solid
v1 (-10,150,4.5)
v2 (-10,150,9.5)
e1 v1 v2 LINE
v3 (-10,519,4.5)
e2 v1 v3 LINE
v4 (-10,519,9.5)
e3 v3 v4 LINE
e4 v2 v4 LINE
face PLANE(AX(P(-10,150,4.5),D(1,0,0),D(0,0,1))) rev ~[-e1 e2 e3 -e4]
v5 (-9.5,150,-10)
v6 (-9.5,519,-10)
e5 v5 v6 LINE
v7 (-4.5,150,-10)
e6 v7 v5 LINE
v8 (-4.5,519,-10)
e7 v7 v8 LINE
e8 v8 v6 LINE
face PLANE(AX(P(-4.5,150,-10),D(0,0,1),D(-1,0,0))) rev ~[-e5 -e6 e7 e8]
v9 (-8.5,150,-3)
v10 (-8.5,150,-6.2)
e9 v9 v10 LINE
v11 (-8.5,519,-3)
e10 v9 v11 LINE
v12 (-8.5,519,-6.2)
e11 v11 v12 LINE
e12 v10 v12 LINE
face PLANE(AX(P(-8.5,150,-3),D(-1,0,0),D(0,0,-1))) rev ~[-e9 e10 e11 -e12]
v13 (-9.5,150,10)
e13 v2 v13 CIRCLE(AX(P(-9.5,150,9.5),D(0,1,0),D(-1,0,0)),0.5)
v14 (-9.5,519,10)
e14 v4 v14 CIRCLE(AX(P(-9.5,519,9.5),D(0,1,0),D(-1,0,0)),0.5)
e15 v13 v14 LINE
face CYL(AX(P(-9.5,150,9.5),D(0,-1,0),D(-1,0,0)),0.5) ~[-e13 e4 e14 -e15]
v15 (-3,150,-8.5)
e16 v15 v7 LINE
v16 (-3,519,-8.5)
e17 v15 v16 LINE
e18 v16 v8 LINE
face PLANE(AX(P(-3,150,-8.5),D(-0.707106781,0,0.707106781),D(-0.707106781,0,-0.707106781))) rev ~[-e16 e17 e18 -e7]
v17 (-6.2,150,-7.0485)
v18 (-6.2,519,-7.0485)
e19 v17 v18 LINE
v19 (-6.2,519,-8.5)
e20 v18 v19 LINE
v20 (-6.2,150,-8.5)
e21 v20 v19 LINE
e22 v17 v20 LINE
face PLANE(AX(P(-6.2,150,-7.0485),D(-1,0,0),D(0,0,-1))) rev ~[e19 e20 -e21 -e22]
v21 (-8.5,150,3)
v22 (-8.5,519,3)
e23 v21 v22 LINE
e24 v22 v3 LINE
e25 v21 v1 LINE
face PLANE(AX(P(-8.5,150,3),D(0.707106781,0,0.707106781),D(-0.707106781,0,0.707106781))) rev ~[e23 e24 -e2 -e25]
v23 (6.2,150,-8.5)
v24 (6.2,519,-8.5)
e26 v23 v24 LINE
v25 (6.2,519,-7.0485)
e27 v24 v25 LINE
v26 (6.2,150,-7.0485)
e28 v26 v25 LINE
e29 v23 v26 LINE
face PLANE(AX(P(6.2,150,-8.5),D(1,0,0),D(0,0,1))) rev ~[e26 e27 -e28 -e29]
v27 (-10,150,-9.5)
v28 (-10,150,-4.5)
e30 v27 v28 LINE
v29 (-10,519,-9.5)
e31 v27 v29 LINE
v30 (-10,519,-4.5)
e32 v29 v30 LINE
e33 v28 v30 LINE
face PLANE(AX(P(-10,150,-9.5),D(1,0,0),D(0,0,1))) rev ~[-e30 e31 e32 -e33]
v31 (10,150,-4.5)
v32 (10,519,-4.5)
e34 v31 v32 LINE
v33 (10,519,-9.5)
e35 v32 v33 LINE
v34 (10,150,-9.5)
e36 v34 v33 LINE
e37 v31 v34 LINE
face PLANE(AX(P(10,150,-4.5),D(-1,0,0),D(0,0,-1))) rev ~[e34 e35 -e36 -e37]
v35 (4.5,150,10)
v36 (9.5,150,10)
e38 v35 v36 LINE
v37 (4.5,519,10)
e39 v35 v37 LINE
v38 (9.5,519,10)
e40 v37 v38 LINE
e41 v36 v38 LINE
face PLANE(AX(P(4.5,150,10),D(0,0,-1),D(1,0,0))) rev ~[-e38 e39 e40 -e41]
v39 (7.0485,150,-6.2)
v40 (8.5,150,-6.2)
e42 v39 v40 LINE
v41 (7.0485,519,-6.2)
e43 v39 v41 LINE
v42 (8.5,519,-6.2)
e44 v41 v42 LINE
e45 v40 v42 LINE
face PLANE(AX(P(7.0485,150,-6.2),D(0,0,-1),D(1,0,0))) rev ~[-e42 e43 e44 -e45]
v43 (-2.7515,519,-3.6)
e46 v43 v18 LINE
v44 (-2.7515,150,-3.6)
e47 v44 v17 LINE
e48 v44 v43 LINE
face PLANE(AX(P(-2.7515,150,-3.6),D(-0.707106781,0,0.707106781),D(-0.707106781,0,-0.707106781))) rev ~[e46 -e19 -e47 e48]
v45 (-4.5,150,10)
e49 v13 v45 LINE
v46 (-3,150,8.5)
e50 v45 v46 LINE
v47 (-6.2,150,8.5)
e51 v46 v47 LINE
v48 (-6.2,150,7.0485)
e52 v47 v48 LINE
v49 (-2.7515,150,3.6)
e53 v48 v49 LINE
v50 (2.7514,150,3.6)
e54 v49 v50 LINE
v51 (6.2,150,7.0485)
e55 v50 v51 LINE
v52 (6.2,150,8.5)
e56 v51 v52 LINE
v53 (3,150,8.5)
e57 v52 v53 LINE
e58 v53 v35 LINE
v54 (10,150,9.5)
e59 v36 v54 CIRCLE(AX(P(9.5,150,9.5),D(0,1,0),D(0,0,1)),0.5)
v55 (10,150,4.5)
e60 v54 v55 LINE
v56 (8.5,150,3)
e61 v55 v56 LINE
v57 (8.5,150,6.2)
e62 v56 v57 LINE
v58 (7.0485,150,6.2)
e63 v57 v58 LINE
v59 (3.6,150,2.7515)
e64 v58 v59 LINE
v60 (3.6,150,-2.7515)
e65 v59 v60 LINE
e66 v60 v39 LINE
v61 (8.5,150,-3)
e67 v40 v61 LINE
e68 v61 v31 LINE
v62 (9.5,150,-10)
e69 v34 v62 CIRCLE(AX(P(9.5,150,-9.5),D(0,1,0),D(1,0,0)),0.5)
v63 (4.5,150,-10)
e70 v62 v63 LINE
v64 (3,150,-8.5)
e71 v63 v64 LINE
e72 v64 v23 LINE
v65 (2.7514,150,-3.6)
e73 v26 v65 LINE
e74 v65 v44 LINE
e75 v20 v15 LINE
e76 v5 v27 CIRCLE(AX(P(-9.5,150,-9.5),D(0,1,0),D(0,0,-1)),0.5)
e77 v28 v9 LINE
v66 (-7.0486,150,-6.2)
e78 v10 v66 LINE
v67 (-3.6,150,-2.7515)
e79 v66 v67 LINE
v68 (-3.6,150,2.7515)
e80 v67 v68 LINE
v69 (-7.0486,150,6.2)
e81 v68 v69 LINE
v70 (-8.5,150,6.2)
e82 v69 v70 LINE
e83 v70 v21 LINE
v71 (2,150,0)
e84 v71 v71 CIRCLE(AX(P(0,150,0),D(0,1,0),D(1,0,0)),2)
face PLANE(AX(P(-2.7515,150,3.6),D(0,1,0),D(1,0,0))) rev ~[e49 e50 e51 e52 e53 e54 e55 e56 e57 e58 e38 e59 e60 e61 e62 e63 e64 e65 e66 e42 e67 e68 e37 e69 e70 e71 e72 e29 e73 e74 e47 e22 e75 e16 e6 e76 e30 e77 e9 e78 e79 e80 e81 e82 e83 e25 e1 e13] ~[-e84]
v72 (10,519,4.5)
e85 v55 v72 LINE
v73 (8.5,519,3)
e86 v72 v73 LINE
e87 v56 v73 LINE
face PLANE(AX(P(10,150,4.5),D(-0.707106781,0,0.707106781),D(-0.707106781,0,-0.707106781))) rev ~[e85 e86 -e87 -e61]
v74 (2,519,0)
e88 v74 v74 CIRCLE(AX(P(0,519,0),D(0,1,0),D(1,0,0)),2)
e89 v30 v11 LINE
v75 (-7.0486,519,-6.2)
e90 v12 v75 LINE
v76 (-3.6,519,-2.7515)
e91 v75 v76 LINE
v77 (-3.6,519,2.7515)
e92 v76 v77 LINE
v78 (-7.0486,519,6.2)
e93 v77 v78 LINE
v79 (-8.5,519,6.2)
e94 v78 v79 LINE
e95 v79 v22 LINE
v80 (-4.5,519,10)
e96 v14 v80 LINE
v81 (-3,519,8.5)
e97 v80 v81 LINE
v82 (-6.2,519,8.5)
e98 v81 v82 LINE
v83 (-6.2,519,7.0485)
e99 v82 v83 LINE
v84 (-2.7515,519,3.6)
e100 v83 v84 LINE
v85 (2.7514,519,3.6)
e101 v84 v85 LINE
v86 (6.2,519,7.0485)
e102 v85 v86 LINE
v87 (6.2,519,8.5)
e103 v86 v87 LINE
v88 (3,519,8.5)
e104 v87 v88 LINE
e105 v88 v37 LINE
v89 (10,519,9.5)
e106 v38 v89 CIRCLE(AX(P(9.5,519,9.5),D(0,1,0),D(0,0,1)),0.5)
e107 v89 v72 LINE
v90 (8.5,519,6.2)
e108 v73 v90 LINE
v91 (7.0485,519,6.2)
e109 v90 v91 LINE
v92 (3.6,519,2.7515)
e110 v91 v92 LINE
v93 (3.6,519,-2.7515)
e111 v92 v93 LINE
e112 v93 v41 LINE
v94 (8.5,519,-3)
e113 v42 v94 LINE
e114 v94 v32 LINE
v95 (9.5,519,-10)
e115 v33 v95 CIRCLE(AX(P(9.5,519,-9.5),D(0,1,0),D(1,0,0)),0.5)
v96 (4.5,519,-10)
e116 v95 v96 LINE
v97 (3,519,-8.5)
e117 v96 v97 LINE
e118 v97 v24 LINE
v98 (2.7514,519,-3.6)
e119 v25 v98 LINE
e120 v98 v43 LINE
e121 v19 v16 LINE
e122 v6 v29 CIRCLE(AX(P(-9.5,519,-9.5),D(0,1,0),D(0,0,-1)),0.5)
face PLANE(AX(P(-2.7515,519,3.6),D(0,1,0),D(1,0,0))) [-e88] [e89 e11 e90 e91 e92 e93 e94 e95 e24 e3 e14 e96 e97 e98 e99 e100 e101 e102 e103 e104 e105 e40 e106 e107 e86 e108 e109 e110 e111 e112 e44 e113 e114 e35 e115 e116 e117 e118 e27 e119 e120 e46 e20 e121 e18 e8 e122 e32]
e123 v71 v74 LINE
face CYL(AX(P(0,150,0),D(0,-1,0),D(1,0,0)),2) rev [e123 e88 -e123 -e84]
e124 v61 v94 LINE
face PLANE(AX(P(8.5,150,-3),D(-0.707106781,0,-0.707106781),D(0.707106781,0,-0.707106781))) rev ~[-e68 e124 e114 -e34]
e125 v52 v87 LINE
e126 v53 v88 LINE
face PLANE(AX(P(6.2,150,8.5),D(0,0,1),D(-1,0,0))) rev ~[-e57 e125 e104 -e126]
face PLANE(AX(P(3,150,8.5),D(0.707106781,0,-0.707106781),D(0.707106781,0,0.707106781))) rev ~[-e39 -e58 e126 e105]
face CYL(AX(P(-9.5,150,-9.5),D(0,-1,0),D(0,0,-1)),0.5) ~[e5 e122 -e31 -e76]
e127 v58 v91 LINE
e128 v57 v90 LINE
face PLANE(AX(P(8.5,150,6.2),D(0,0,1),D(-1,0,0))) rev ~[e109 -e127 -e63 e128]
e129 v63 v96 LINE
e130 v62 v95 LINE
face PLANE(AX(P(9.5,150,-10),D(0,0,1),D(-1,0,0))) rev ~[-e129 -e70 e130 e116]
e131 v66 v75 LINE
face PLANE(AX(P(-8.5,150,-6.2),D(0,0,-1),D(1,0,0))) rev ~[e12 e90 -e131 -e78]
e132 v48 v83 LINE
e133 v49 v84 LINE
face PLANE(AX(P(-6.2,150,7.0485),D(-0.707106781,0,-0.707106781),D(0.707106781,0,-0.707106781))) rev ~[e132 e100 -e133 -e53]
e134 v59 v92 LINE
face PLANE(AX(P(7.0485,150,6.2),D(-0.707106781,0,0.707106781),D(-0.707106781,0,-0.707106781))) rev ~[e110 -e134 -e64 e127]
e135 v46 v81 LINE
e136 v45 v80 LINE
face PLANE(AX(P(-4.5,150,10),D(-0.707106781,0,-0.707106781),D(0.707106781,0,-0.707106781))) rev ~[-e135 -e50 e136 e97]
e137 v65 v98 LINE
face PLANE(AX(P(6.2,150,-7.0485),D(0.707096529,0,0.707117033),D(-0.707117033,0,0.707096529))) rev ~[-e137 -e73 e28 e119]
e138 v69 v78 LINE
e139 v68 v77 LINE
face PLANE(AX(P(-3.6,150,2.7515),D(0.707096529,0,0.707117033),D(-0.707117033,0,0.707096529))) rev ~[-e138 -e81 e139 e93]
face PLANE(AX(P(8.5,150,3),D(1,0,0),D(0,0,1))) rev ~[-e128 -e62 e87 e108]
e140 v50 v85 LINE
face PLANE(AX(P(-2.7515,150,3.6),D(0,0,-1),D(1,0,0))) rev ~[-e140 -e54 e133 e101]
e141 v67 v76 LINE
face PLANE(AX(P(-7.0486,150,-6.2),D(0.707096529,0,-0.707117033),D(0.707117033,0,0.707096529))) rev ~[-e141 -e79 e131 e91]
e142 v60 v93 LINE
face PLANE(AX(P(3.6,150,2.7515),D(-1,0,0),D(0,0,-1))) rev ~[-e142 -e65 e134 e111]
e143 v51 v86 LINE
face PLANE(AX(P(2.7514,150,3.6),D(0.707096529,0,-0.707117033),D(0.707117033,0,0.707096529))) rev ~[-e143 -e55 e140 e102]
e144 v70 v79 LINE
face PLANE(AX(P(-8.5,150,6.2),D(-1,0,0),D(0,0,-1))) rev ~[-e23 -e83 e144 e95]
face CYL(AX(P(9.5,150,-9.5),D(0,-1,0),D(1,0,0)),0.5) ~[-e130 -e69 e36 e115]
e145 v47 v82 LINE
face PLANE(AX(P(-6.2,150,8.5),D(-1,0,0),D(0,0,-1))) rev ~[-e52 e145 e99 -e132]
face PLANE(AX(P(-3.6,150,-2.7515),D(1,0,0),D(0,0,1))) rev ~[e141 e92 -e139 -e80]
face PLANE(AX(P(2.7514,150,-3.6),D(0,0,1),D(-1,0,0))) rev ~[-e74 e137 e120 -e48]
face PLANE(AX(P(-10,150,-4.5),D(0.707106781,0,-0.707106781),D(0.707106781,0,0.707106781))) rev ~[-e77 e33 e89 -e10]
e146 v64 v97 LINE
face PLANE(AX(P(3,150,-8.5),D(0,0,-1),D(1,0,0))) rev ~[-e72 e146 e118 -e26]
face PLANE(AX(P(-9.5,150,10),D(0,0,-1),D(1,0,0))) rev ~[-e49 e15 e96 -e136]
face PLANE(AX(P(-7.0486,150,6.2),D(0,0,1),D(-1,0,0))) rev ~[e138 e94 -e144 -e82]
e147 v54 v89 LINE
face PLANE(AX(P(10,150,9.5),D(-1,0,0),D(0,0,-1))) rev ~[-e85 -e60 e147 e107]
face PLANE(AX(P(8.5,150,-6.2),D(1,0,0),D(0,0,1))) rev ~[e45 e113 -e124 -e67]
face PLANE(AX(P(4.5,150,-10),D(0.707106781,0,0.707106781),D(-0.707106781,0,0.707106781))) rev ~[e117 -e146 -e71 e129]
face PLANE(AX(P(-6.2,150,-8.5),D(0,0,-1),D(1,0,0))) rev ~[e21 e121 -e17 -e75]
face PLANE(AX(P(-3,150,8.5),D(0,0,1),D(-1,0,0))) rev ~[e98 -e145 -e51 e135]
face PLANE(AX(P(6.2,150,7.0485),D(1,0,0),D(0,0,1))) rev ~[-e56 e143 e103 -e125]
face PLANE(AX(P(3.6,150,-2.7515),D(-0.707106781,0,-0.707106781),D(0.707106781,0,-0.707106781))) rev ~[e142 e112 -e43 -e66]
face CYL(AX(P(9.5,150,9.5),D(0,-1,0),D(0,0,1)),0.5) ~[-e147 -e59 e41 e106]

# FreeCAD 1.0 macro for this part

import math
import FreeCAD as App
import Part
import Sketcher

doc = App.newDocument("Part")
body = doc.addObject("PartDesign::Body", "Body")

sketch1 = body.newObject("Sketcher::SketchObject", "Sketch")
sketch1.AttachmentSupport = (doc.getObject("XZ_Plane"), [""])
sketch1.MapMode = "FlatFace"
sketch1.AttachmentOffset = App.Placement(App.Vector(0, 0, -150), App.Rotation())
sketch1.addGeometry([
    Part.LineSegment(App.Vector(-4.5, -10, 0), App.Vector(-9.5, -10, 0)),
    Part.ArcOfCircle(Part.Circle(App.Vector(-9.5, -9.5, 0), App.Vector(0, 0, 1), 0.5), math.radians(180), math.radians(270)),
    Part.LineSegment(App.Vector(-10, -9.5, 0), App.Vector(-10, -4.5, 0)),
    Part.LineSegment(App.Vector(-10, -4.5, 0), App.Vector(-8.5, -3, 0)),
    Part.LineSegment(App.Vector(-8.5, -3, 0), App.Vector(-8.5, -6.2, 0)),
    Part.LineSegment(App.Vector(-8.5, -6.2, 0), App.Vector(-7.0486, -6.2, 0)),
    Part.LineSegment(App.Vector(-7.0486, -6.2, 0), App.Vector(-3.6, -2.7515, 0)),
    Part.LineSegment(App.Vector(-3.6, -2.7515, 0), App.Vector(-3.6, 2.7515, 0)),
    Part.LineSegment(App.Vector(-3.6, 2.7515, 0), App.Vector(-7.0486, 6.2, 0)),
    Part.LineSegment(App.Vector(-7.0486, 6.2, 0), App.Vector(-8.5, 6.2, 0)),
    Part.LineSegment(App.Vector(-8.5, 6.2, 0), App.Vector(-8.5, 3, 0)),
    Part.LineSegment(App.Vector(-8.5, 3, 0), App.Vector(-10, 4.5, 0)),
    Part.LineSegment(App.Vector(-10, 4.5, 0), App.Vector(-10, 9.5, 0)),
    Part.ArcOfCircle(Part.Circle(App.Vector(-9.5, 9.5, 0), App.Vector(0, 0, 1), 0.5), math.radians(90), math.radians(180)),
    Part.LineSegment(App.Vector(-9.5, 10, 0), App.Vector(-4.5, 10, 0)),
    Part.LineSegment(App.Vector(-4.5, 10, 0), App.Vector(-3, 8.5, 0)),
    Part.LineSegment(App.Vector(-3, 8.5, 0), App.Vector(-6.2, 8.5, 0)),
    Part.LineSegment(App.Vector(-6.2, 8.5, 0), App.Vector(-6.2, 7.0485, 0)),
    Part.LineSegment(App.Vector(-6.2, 7.0485, 0), App.Vector(-2.7515, 3.6, 0)),
    Part.LineSegment(App.Vector(-2.7515, 3.6, 0), App.Vector(2.7514, 3.6, 0)),
    Part.LineSegment(App.Vector(2.7514, 3.6, 0), App.Vector(6.2, 7.0485, 0)),
    Part.LineSegment(App.Vector(6.2, 7.0485, 0), App.Vector(6.2, 8.5, 0)),
    Part.LineSegment(App.Vector(6.2, 8.5, 0), App.Vector(3, 8.5, 0)),
    Part.LineSegment(App.Vector(3, 8.5, 0), App.Vector(4.5, 10, 0)),
    Part.LineSegment(App.Vector(4.5, 10, 0), App.Vector(9.5, 10, 0)),
    Part.ArcOfCircle(Part.Circle(App.Vector(9.5, 9.5, 0), App.Vector(0, 0, 1), 0.5), math.radians(0), math.radians(90)),
    Part.LineSegment(App.Vector(10, 9.5, 0), App.Vector(10, 4.5, 0)),
    Part.LineSegment(App.Vector(10, 4.5, 0), App.Vector(8.5, 3, 0)),
    Part.LineSegment(App.Vector(8.5, 3, 0), App.Vector(8.5, 6.2, 0)),
    Part.LineSegment(App.Vector(8.5, 6.2, 0), App.Vector(7.0485, 6.2, 0)),
    Part.LineSegment(App.Vector(7.0485, 6.2, 0), App.Vector(3.6, 2.7515, 0)),
    Part.LineSegment(App.Vector(3.6, 2.7515, 0), App.Vector(3.6, -2.7515, 0)),
    Part.LineSegment(App.Vector(3.6, -2.7515, 0), App.Vector(7.0485, -6.2, 0)),
    Part.LineSegment(App.Vector(7.0485, -6.2, 0), App.Vector(8.5, -6.2, 0)),
    Part.LineSegment(App.Vector(8.5, -6.2, 0), App.Vector(8.5, -3, 0)),
    Part.LineSegment(App.Vector(8.5, -3, 0), App.Vector(10, -4.5, 0)),
    Part.LineSegment(App.Vector(10, -4.5, 0), App.Vector(10, -9.5, 0)),
    Part.ArcOfCircle(Part.Circle(App.Vector(9.5, -9.5, 0), App.Vector(0, 0, 1), 0.5), math.radians(-90), math.radians(0)),
    Part.LineSegment(App.Vector(9.5, -10, 0), App.Vector(4.5, -10, 0)),
    Part.LineSegment(App.Vector(4.5, -10, 0), App.Vector(3, -8.5, 0)),
    Part.LineSegment(App.Vector(3, -8.5, 0), App.Vector(6.2, -8.5, 0)),
    Part.LineSegment(App.Vector(6.2, -8.5, 0), App.Vector(6.2, -7.0485, 0)),
    Part.LineSegment(App.Vector(6.2, -7.0485, 0), App.Vector(2.7514, -3.6, 0)),
    Part.LineSegment(App.Vector(2.7514, -3.6, 0), App.Vector(-2.7515, -3.6, 0)),
    Part.LineSegment(App.Vector(-2.7515, -3.6, 0), App.Vector(-6.2, -7.0485, 0)),
    Part.LineSegment(App.Vector(-6.2, -7.0485, 0), App.Vector(-6.2, -8.5, 0)),
    Part.LineSegment(App.Vector(-6.2, -8.5, 0), App.Vector(-3, -8.5, 0)),
    Part.LineSegment(App.Vector(-3, -8.5, 0), App.Vector(-4.5, -10, 0)),
    Part.Circle(App.Vector(0, 0, 0), App.Vector(0, 0, 1), 2),
], False)
sketch1.addConstraint([
    Sketcher.Constraint("Tangent", 0, 2, 1, 2),
    Sketcher.Constraint("Tangent", 1, 1, 2, 1),
    Sketcher.Constraint("Coincident", 2, 2, 3, 1),
    Sketcher.Constraint("Coincident", 3, 2, 4, 1),
    Sketcher.Constraint("Coincident", 4, 2, 5, 1),
    Sketcher.Constraint("Coincident", 5, 2, 6, 1),
    Sketcher.Constraint("Coincident", 6, 2, 7, 1),
    Sketcher.Constraint("Coincident", 7, 2, 8, 1),
    Sketcher.Constraint("Coincident", 8, 2, 9, 1),
    Sketcher.Constraint("Coincident", 9, 2, 10, 1),
    Sketcher.Constraint("Coincident", 10, 2, 11, 1),
    Sketcher.Constraint("Coincident", 11, 2, 12, 1),
    Sketcher.Constraint("Tangent", 12, 2, 13, 2),
    Sketcher.Constraint("Tangent", 13, 1, 14, 1),
    Sketcher.Constraint("Coincident", 14, 2, 15, 1),
    Sketcher.Constraint("Coincident", 15, 2, 16, 1),
    Sketcher.Constraint("Coincident", 16, 2, 17, 1),
    Sketcher.Constraint("Coincident", 17, 2, 18, 1),
    Sketcher.Constraint("Coincident", 18, 2, 19, 1),
    Sketcher.Constraint("Coincident", 19, 2, 20, 1),
    Sketcher.Constraint("Coincident", 20, 2, 21, 1),
    Sketcher.Constraint("Coincident", 21, 2, 22, 1),
    Sketcher.Constraint("Coincident", 22, 2, 23, 1),
    Sketcher.Constraint("Coincident", 23, 2, 24, 1),
    Sketcher.Constraint("Tangent", 24, 2, 25, 2),
    Sketcher.Constraint("Tangent", 25, 1, 26, 1),
    Sketcher.Constraint("Coincident", 26, 2, 27, 1),
    Sketcher.Constraint("Coincident", 27, 2, 28, 1),
    Sketcher.Constraint("Coincident", 28, 2, 29, 1),
    Sketcher.Constraint("Coincident", 29, 2, 30, 1),
    Sketcher.Constraint("Coincident", 30, 2, 31, 1),
    Sketcher.Constraint("Coincident", 31, 2, 32, 1),
    Sketcher.Constraint("Coincident", 32, 2, 33, 1),
    Sketcher.Constraint("Coincident", 33, 2, 34, 1),
    Sketcher.Constraint("Coincident", 34, 2, 35, 1),
    Sketcher.Constraint("Coincident", 35, 2, 36, 1),
    Sketcher.Constraint("Tangent", 36, 2, 37, 2),
    Sketcher.Constraint("Tangent", 37, 1, 38, 1),
    Sketcher.Constraint("Coincident", 38, 2, 39, 1),
    Sketcher.Constraint("Coincident", 39, 2, 40, 1),
    Sketcher.Constraint("Coincident", 40, 2, 41, 1),
    Sketcher.Constraint("Coincident", 41, 2, 42, 1),
    Sketcher.Constraint("Coincident", 42, 2, 43, 1),
    Sketcher.Constraint("Coincident", 43, 2, 44, 1),
    Sketcher.Constraint("Coincident", 44, 2, 45, 1),
    Sketcher.Constraint("Coincident", 45, 2, 46, 1),
    Sketcher.Constraint("Coincident", 46, 2, 47, 1),
    Sketcher.Constraint("Coincident", 47, 2, 0, 1),
    Sketcher.Constraint("Horizontal", 0),
    Sketcher.Constraint("Vertical", 2),
    Sketcher.Constraint("Vertical", 4),
    Sketcher.Constraint("Horizontal", 5),
    Sketcher.Constraint("Vertical", 7),
    Sketcher.Constraint("Horizontal", 9),
    Sketcher.Constraint("Vertical", 10),
    Sketcher.Constraint("Vertical", 12),
    Sketcher.Constraint("Horizontal", 14),
    Sketcher.Constraint("Horizontal", 16),
    Sketcher.Constraint("Vertical", 17),
    Sketcher.Constraint("Horizontal", 19),
    Sketcher.Constraint("Vertical", 21),
    Sketcher.Constraint("Horizontal", 22),
    Sketcher.Constraint("Horizontal", 24),
    Sketcher.Constraint("Vertical", 26),
    Sketcher.Constraint("Vertical", 28),
    Sketcher.Constraint("Horizontal", 29),
    Sketcher.Constraint("Vertical", 31),
    Sketcher.Constraint("Horizontal", 33),
    Sketcher.Constraint("Vertical", 34),
    Sketcher.Constraint("Vertical", 36),
    Sketcher.Constraint("Horizontal", 38),
    Sketcher.Constraint("Horizontal", 40),
    Sketcher.Constraint("Vertical", 41),
    Sketcher.Constraint("Horizontal", 43),
    Sketcher.Constraint("Vertical", 45),
    Sketcher.Constraint("Horizontal", 46),
    Sketcher.Constraint("Coincident", 48, 3, -1, 1),
    Sketcher.Constraint("Equal", 1, 13),
    Sketcher.Constraint("Equal", 13, 25),
    Sketcher.Constraint("Equal", 25, 37),
    Sketcher.Constraint("Symmetric", 1, 3, 25, 3, -1, 1),
    Sketcher.Constraint("Symmetric", 13, 3, 37, 3, -1, 1),
    Sketcher.Constraint("Symmetric", 3, 2, 27, 2, -1, 1),
    Sketcher.Constraint("Symmetric", 5, 2, 29, 2, -1, 1),
    Sketcher.Constraint("Symmetric", 6, 2, 30, 2, -1, 1),
    Sketcher.Constraint("Symmetric", 8, 2, 32, 2, -1, 1),
    Sketcher.Constraint("Symmetric", 10, 2, 34, 2, -1, 1),
    Sketcher.Constraint("Symmetric", 15, 2, 39, 2, -1, 1),
    Sketcher.Constraint("Symmetric", 17, 2, 41, 2, -1, 1),
    Sketcher.Constraint("Symmetric", 18, 2, 42, 2, -1, 1),
    Sketcher.Constraint("Symmetric", 20, 2, 44, 2, -1, 1),
    Sketcher.Constraint("Symmetric", 22, 2, 46, 2, -1, 1),
    Sketcher.Constraint("Symmetric", 13, 3, 25, 3, -2),
    Sketcher.Constraint("Symmetric", 17, 2, 20, 2, -2),
    Sketcher.Constraint("Symmetric", 15, 2, 22, 2, -2),
    Sketcher.Constraint("Symmetric", 10, 2, 27, 2, -2),
    Sketcher.Constraint("Symmetric", 8, 2, 29, 2, -2),
    Sketcher.Constraint("Parallel", 3, 6),
    Sketcher.Constraint("Perpendicular", 6, 8),
    Sketcher.Constraint("Parallel", 8, 11),
    Sketcher.Constraint("Parallel", 11, 15),
    Sketcher.Constraint("Parallel", 15, 18),
    Sketcher.Constraint("Perpendicular", 18, 20),
    Sketcher.Constraint("Parallel", 20, 23),
    Sketcher.Constraint("Parallel", 23, 27),
    Sketcher.Constraint("Perpendicular", 30, 32),
    Sketcher.Constraint("Parallel", 32, 35),
    Sketcher.Constraint("Parallel", 35, 39),
    Sketcher.Constraint("Perpendicular", 42, 44),
    Sketcher.Constraint("Parallel", 44, 47),
    Sketcher.Constraint("Horizontal", 11, 2, 26, 2),
    Sketcher.Constraint("Equal", 38, 2),
    Sketcher.Constraint("Equal", 46, 4),
    Sketcher.Constraint("Equal", 43, 7),
    Sketcher.Constraint("Equal", 33, 17),
    Sketcher.Constraint("Equal", 11, 15),
    Sketcher.Constraint("Equal", 8, 18),
    Sketcher.Constraint("Diameter", 48, 4.0),
    Sketcher.Constraint("Radius", 1, 0.5),
    Sketcher.Constraint("DistanceX", 0, 2, 0, 1, 5.0),
    Sketcher.Constraint("DistanceX", 16, 2, 16, 1, 3.2),
    Sketcher.Constraint("DistanceY", 0, 2, -1, 1, 10.0),
    Sketcher.Constraint("DistanceY", 3, 2, -1, 1, 3.0),
    Sketcher.Constraint("DistanceX", 6, 2, -1, 1, 3.6),
    Sketcher.Constraint("DistanceX", 19, 1, 19, 2, 5.503),
])
pad1 = body.newObject("PartDesign::Pad", "Pad")
pad1.Profile = sketch1
pad1.Length = 369
pad1.Reversed = True

doc.recompute()
